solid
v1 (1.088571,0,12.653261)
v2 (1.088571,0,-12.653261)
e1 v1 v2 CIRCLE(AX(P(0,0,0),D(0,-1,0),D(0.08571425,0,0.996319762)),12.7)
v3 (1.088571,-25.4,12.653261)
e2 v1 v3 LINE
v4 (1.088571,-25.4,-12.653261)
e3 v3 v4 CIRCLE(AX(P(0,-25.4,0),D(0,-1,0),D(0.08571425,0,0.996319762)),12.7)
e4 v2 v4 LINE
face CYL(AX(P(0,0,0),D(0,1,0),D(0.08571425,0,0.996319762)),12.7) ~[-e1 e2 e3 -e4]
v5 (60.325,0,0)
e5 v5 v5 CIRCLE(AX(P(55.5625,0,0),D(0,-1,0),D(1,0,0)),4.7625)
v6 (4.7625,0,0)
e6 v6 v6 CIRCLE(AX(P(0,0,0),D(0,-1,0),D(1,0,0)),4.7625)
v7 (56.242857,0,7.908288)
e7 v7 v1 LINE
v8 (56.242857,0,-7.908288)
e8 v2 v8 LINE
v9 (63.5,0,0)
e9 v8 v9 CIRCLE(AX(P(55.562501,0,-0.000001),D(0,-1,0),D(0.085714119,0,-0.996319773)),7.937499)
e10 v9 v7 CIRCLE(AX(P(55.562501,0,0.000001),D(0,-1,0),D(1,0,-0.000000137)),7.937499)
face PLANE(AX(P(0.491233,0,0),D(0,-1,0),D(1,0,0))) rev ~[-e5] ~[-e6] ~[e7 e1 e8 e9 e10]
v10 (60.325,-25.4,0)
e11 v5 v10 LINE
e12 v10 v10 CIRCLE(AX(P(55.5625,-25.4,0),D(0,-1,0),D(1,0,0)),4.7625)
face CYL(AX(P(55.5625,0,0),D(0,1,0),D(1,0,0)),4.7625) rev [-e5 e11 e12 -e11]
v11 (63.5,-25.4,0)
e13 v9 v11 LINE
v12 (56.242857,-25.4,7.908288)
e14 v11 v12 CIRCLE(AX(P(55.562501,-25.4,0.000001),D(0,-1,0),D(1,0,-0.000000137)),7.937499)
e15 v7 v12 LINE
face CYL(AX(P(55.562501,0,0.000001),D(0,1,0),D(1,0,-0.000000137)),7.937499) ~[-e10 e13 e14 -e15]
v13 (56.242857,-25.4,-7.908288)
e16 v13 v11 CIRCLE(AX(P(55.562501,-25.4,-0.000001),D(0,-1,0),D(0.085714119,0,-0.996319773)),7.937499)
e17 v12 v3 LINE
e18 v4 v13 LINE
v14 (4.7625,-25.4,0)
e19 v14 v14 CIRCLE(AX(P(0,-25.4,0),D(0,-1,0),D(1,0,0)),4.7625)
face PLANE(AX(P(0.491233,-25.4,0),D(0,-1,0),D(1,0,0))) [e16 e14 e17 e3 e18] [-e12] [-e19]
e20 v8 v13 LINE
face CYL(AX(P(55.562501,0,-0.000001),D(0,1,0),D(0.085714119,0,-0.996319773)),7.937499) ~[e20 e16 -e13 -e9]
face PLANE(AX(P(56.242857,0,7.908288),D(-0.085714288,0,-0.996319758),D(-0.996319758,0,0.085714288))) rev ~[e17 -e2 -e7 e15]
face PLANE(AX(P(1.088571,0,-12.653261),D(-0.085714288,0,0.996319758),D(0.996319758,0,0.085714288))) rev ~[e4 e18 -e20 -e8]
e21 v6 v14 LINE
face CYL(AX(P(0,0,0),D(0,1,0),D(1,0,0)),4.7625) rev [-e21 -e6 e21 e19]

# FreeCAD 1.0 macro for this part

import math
import FreeCAD as App
import Part
import Sketcher

V = App.Vector
Q = App.Units.Quantity

doc = App.newDocument("Part")
params = doc.addObject("Spreadsheet::Sheet", "Params")
for row, (alias, value) in enumerate([
    ("sketch1_radius", "0.5 in"),
    ("sketch1_diameter", "0.375 in"),
    ("sketch1_radius2", "0.3124999 in"),
    ("pad1_length", "1 in"),
    ("sketch2_radius", "0.5 in"),
    ("sketch2_diameter", "0.375 in"),
    ("sketch2_radius2", "0.3124999 in"),
    ("pad2_length", "1 in"),
], start=1):
    params.set(f"A{row}", alias)
    params.set(f"B{row}", "=" + value)
    params.setAlias(f"B{row}", alias)

body = doc.addObject("PartDesign::Body", "Body")

sketch1 = doc.addObject("Sketcher::SketchObject", "Sketch")
body.addObject(sketch1)
sketch1.AttachmentSupport = (doc.XZ_Plane, [""])
sketch1.MapMode = "FlatFace"
sketch1.addGeometry(Part.ArcOfCircle(Part.Circle(V(0, 0, 0), V(0, 0, 1), 12.7), math.radians(85), math.radians(275)), False)
sketch1.addGeometry(Part.LineSegment(V(1.1, -12.7, 0), V(56.2, -7.9, 0)), False)
sketch1.addGeometry(Part.ArcOfCircle(Part.Circle(V(55.6, 0, 0), V(0, 0, 1), 7.9), math.radians(-85), math.radians(0)), False)
sketch1.addGeometry(Part.ArcOfCircle(Part.Circle(V(55.6, 0, 0), V(0, 0, 1), 7.9), math.radians(0), math.radians(85)), False)
sketch1.addGeometry(Part.LineSegment(V(56.2, 7.9, 0), V(1.1, 12.7, 0)), False)
sketch1.addGeometry(Part.Circle(V(0, 0, 0), V(0, 0, 1), 4.8), False)
sketch1.addGeometry(Part.Circle(V(55.6, 0, 0), V(0, 0, 1), 4.8), False)
sketch1.addConstraint(Sketcher.Constraint("Tangent", 0, 2, 1, 1))
sketch1.addConstraint(Sketcher.Constraint("Tangent", 1, 2, 2, 1))
sketch1.addConstraint(Sketcher.Constraint("Tangent", 2, 2, 3, 1))
sketch1.addConstraint(Sketcher.Constraint("Tangent", 3, 2, 4, 1))
sketch1.addConstraint(Sketcher.Constraint("Tangent", 4, 2, 0, 1))
sketch1.addConstraint(Sketcher.Constraint("Coincident", 0, 3, -1, 1))
sketch1.addConstraint(Sketcher.Constraint("Coincident", 5, 3, -1, 1))
sketch1.addConstraint(Sketcher.Constraint("Coincident", 6, 3, 2, 3))
sketch1.addConstraint(Sketcher.Constraint("Equal", 2, 3))
sketch1.addConstraint(Sketcher.Constraint("Equal", 5, 6))
sketch1.addConstraint(Sketcher.Constraint("PointOnObject", 2, 3, -1))
sketch1.addConstraint(Sketcher.Constraint("PointOnObject", 2, 2, -1))
sketch1.addConstraint(Sketcher.Constraint("Radius", 0, Q("0.5 in")))
sketch1.addConstraint(Sketcher.Constraint("Diameter", 5, Q("0.375 in")))
sketch1.addConstraint(Sketcher.Constraint("Radius", 2, Q("0.3124999 in")))
sketch1.addConstraint(Sketcher.Constraint("DistanceX", -1, 1, 2, 2, Q("2.5 in")))
sketch1.setExpression("Constraints[12]", "Params.sketch1_radius")
sketch1.setExpression("Constraints[13]", "Params.sketch1_diameter")
sketch1.setExpression("Constraints[14]", "Params.sketch1_radius2")
pad1 = doc.addObject("PartDesign::Pad", "Pad")
body.addObject(pad1)
pad1.Profile = sketch1
pad1.setExpression("Length", "Params.pad1_length")

sketch2 = doc.addObject("Sketcher::SketchObject", "Sketch001")
body.addObject(sketch2)
sketch2.AttachmentSupport = (doc.XZ_Plane, [""])
sketch2.MapMode = "FlatFace"
sketch2.addGeometry(Part.ArcOfCircle(Part.Circle(V(0, 0, 0), V(0, 0, 1), 12.7), math.radians(85), math.radians(275)), False)
sketch2.addGeometry(Part.LineSegment(V(1.1, -12.7, 0), V(56.2, -7.9, 0)), False)
sketch2.addGeometry(Part.ArcOfCircle(Part.Circle(V(55.6, 0, 0), V(0, 0, 1), 7.9), math.radians(-85), math.radians(0)), False)
sketch2.addGeometry(Part.ArcOfCircle(Part.Circle(V(55.6, 0, 0), V(0, 0, 1), 7.9), math.radians(0), math.radians(85)), False)
sketch2.addGeometry(Part.LineSegment(V(56.2, 7.9, 0), V(1.1, 12.7, 0)), False)
sketch2.addGeometry(Part.Circle(V(0, 0, 0), V(0, 0, 1), 4.8), False)
sketch2.addGeometry(Part.Circle(V(55.6, 0, 0), V(0, 0, 1), 4.8), False)
sketch2.addConstraint(Sketcher.Constraint("Tangent", 0, 2, 1, 1))
sketch2.addConstraint(Sketcher.Constraint("Tangent", 1, 2, 2, 1))
sketch2.addConstraint(Sketcher.Constraint("Tangent", 2, 2, 3, 1))
sketch2.addConstraint(Sketcher.Constraint("Tangent", 3, 2, 4, 1))
sketch2.addConstraint(Sketcher.Constraint("Tangent", 4, 2, 0, 1))
sketch2.addConstraint(Sketcher.Constraint("Coincident", 0, 3, -1, 1))
sketch2.addConstraint(Sketcher.Constraint("Coincident", 5, 3, -1, 1))
sketch2.addConstraint(Sketcher.Constraint("Coincident", 6, 3, 2, 3))
sketch2.addConstraint(Sketcher.Constraint("Equal", 2, 3))
sketch2.addConstraint(Sketcher.Constraint("Equal", 5, 6))
sketch2.addConstraint(Sketcher.Constraint("PointOnObject", 2, 3, -1))
sketch2.addConstraint(Sketcher.Constraint("PointOnObject", 2, 2, -1))
sketch2.addConstraint(Sketcher.Constraint("Radius", 0, Q("0.5 in")))
sketch2.addConstraint(Sketcher.Constraint("Diameter", 5, Q("0.375 in")))
sketch2.addConstraint(Sketcher.Constraint("Radius", 2, Q("0.3124999 in")))
sketch2.addConstraint(Sketcher.Constraint("DistanceX", -1, 1, 2, 2, Q("2.5 in")))
sketch2.setExpression("Constraints[12]", "Params.sketch2_radius")
sketch2.setExpression("Constraints[13]", "Params.sketch2_diameter")
sketch2.setExpression("Constraints[14]", "Params.sketch2_radius2")
pad2 = doc.addObject("PartDesign::Pad", "Pad001")
body.addObject(pad2)
pad2.Profile = sketch2
pad2.setExpression("Length", "Params.pad2_length")

doc.recompute()
